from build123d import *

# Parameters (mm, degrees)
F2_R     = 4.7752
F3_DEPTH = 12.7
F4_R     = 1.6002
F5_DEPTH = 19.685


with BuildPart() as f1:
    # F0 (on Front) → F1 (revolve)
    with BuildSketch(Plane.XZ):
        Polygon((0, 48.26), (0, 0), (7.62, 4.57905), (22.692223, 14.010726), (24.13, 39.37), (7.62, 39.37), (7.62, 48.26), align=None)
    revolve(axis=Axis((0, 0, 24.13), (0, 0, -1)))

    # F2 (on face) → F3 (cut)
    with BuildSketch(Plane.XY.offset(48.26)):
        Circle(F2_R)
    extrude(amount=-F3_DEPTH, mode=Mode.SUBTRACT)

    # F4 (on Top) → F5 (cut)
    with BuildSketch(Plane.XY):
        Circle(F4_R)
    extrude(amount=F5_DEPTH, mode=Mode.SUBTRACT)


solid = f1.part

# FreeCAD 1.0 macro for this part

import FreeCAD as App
import Part
import Sketcher

V = App.Vector
Q = App.Units.Quantity


def add_polygon(sketch, points):
    """Adds a closed chain of lines whose ends are joined by coincident constraints."""
    first, n = sketch.GeometryCount, len(points)
    for a, b in zip(points, points[1:] + points[:1]):
        sketch.addGeometry(Part.LineSegment(App.Vector(*a, 0), App.Vector(*b, 0)), False)
    for i in range(n):
        sketch.addConstraint(Sketcher.Constraint("Coincident", first + i, 2, first + (i + 1) % n, 1))

doc = App.newDocument("Part")
body = doc.addObject("PartDesign::Body", "Body")

sketch1 = body.newObject("Sketcher::SketchObject", "Sketch")
sketch1.AttachmentSupport = (doc.getObject("XZ_Plane"), [""])
sketch1.MapMode = "FlatFace"
add_polygon(sketch1, [(0, 48), (0, 0), (8, 5), (23, 14), (24, 39), (8, 39), (8, 48)])
sketch1.addConstraint([
    Sketcher.Constraint("Vertical", 0),
    Sketcher.Constraint("Horizontal", 4),
    Sketcher.Constraint("Vertical", 5),
    Sketcher.Constraint("Horizontal", 6),
    Sketcher.Constraint("Coincident", 0, 2, -1, 1),
    Sketcher.Constraint("Vertical", 1, 2, 4, 2),
    Sketcher.Constraint("Distance", 3, Q("1 in")),
    Sketcher.Constraint("DistanceX", 6, 2, 6, 1, Q("0.3 in")),
    Sketcher.Constraint("DistanceY", 0, 2, 0, 1, Q("1.9 in")),
    Sketcher.Constraint("Distance", 2, Q("0.7 in")),
    Sketcher.Constraint("DistanceX", 4, 2, 4, 1, Q("0.65 in")),
    Sketcher.Constraint("DistanceY", 5, 1, 5, 2, Q("0.35 in")),
    Sketcher.Constraint("Distance", 1, Q("0.35 in")),
])
revolution = body.newObject("PartDesign::Revolution", "Revolution")
revolution.Profile = sketch1
revolution.ReferenceAxis = (sketch1, ["V_Axis"])
revolution.Angle = 360

sketch2 = body.newObject("Sketcher::SketchObject", "Sketch001")
sketch2.AttachmentSupport = (doc.getObject("XY_Plane"), [""])
sketch2.MapMode = "FlatFace"
sketch2.AttachmentOffset = App.Placement(V(0, 0, 1.9 * 25.4), App.Rotation())
sketch2.addGeometry(Part.Circle(V(0, 0, 0), V(0, 0, 1), 4.8), False)
sketch2.addConstraint([
    Sketcher.Constraint("Coincident", 0, 3, -1, 1),
    Sketcher.Constraint("Diameter", 0, Q("0.376 in")),
])
pocket1 = body.newObject("PartDesign::Pocket", "Pocket")
pocket1.Profile = sketch2
pocket1.Length = Q("0.5 in")

sketch3 = body.newObject("Sketcher::SketchObject", "Sketch002")
sketch3.AttachmentSupport = (doc.getObject("XY_Plane"), [""])
sketch3.MapMode = "FlatFace"
sketch3.addGeometry(Part.Circle(V(0, 0, 0), V(0, 0, 1), 1.6), False)
sketch3.addConstraint([
    Sketcher.Constraint("Coincident", 0, 3, -1, 1),
    Sketcher.Constraint("Diameter", 0, Q("0.126 in")),
])
pocket2 = body.newObject("PartDesign::Pocket", "Pocket001")
pocket2.Profile = sketch3
pocket2.Length = Q("0.775 in")
pocket2.Reversed = True

doc.recompute()
